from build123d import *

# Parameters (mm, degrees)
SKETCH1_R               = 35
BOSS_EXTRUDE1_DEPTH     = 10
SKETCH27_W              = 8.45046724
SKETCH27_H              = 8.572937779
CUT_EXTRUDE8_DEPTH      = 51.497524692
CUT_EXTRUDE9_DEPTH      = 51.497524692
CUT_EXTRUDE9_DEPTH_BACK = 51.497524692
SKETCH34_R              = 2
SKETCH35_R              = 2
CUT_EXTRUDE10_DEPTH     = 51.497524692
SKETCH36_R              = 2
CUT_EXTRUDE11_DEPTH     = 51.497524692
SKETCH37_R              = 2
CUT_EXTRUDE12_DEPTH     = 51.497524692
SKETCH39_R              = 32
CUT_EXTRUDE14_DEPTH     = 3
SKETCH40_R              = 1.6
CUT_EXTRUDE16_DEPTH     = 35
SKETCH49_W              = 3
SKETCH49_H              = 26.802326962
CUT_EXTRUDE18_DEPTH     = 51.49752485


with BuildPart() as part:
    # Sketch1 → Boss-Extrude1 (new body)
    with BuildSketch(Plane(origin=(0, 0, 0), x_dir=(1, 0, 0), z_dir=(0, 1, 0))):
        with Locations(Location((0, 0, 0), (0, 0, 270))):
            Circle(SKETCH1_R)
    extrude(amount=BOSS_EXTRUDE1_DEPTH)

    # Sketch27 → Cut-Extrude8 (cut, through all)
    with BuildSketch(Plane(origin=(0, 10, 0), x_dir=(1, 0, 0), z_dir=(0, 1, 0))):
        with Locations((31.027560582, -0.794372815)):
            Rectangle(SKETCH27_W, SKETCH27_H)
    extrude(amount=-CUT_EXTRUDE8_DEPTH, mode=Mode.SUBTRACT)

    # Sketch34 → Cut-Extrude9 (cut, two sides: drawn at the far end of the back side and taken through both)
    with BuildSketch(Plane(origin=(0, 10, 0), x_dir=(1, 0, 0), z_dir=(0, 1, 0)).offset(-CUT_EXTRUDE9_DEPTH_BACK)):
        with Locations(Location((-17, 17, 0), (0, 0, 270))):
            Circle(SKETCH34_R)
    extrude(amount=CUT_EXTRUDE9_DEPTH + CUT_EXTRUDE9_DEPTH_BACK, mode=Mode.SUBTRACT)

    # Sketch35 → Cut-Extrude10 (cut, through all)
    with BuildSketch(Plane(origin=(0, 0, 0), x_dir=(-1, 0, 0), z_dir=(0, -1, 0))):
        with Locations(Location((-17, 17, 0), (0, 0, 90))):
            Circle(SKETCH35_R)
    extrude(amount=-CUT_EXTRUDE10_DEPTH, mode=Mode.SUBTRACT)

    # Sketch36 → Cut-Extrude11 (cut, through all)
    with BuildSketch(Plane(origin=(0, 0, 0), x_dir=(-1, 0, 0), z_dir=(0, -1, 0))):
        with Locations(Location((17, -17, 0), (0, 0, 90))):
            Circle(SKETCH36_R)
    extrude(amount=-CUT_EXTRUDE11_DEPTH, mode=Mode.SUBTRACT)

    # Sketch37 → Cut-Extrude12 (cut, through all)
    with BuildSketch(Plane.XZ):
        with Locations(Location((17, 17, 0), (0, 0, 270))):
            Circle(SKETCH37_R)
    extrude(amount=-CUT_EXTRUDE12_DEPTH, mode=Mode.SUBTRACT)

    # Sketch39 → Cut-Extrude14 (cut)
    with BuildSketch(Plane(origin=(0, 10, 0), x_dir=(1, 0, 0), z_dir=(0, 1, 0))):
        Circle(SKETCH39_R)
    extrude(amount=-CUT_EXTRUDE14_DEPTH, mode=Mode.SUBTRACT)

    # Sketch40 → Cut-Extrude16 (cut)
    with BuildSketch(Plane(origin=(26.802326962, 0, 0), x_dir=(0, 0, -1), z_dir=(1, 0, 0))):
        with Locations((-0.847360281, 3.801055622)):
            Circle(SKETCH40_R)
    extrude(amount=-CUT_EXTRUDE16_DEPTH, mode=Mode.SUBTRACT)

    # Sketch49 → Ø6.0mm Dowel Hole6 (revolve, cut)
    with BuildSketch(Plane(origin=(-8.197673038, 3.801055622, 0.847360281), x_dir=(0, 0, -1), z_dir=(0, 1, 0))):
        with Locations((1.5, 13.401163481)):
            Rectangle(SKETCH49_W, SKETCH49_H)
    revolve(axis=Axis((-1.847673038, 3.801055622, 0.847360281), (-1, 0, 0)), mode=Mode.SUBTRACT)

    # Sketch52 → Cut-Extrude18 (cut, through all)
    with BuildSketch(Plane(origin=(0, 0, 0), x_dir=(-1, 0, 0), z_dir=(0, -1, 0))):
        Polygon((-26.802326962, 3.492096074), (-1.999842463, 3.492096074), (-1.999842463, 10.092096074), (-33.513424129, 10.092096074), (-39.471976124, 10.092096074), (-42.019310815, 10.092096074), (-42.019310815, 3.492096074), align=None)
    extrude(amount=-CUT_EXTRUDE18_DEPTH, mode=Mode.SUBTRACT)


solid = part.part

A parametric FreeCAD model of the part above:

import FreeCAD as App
import Part
import Sketcher
from FreeCAD import Vector
Q = App.Units.Quantity

doc = App.newDocument("Part")
body = doc.addObject("PartDesign::Body", "Body")

# Sketch on XZ plane
sketch1 = body.newObject("Sketcher::SketchObject", "Sketch")
sketch1.AttachmentSupport = (doc.getObject("XZ_Plane"), [""])
sketch1.MapMode = "FlatFace"
sketch1.addGeometry(Part.Circle(Vector(0, 0, 0), Vector(0, 0, 1), 35), False)
sketch1.addConstraint([
    Sketcher.Constraint("Coincident", 0, 3, -1, 1),
    Sketcher.Constraint("Diameter", 0, Q("70 mm")),
])
pad1 = body.newObject("PartDesign::Pad", "Pad")
pad1.Profile = sketch1
pad1.Length = 10
pad1.Reversed = True

# Sketch on XZ plane
sketch2 = body.newObject("Sketcher::SketchObject", "Sketch001")
sketch2.AttachmentSupport = (doc.getObject("XZ_Plane"), [""])
sketch2.MapMode = "FlatFace"
sketch2.AttachmentOffset = App.Placement(Vector(0, 0, -10), App.Rotation())
sketch2.addGeometry([
    Part.LineSegment(Vector(27, -3, 0), Vector(27, 5, 0)),
    Part.LineSegment(Vector(27, 5, 0), Vector(35, 5, 0)),
    Part.LineSegment(Vector(35, 5, 0), Vector(35, -3, 0)),
    Part.LineSegment(Vector(35, -3, 0), Vector(27, -3, 0)),
], False)
sketch2.addConstraint([
    Sketcher.Constraint("Coincident", 0, 2, 1, 1),
    Sketcher.Constraint("Coincident", 1, 2, 2, 1),
    Sketcher.Constraint("Coincident", 2, 2, 3, 1),
    Sketcher.Constraint("Coincident", 3, 2, 0, 1),
    Sketcher.Constraint("Vertical", 0),
    Sketcher.Constraint("Horizontal", 1),
    Sketcher.Constraint("Vertical", 2),
    Sketcher.Constraint("Horizontal", 3),
    Sketcher.Constraint("DistanceX", 1, 1, 1, 2, Q("8.450467 mm")),
    Sketcher.Constraint("DistanceY", 0, 1, 0, 2, Q("8.572938 mm")),
    Sketcher.Constraint("DistanceY", -1, 1, 0, 2, Q("5.080842 mm")),
    Sketcher.Constraint("DistanceX", -1, 1, 0, 2, Q("26.802327 mm")),
])
pocket1 = body.newObject("PartDesign::Pocket", "Pocket")
pocket1.Profile = sketch2
pocket1.Type = "ThroughAll"
pocket1.Reversed = True

# Sketch on XZ plane
sketch3 = body.newObject("Sketcher::SketchObject", "Sketch002")
sketch3.AttachmentSupport = (doc.getObject("XZ_Plane"), [""])
sketch3.MapMode = "FlatFace"
sketch3.AttachmentOffset = App.Placement(Vector(0, 0, -10), App.Rotation())
sketch3.addGeometry(Part.Circle(Vector(-17, -17, 0), Vector(0, 0, 1), 2), False)
sketch3.addConstraint([
    Sketcher.Constraint("Diameter", 0, Q("4 mm")),
    Sketcher.Constraint("DistanceX", 0, 3, -1, 1, Q("17 mm")),
    Sketcher.Constraint("DistanceY", 0, 3, -1, 1, Q("17 mm")),
])
pocket2 = body.newObject("PartDesign::Pocket", "Pocket001")
pocket2.Profile = sketch3
pocket2.Type = "ThroughAll"
pocket2.Midplane = True

# Sketch on XZ plane
sketch4 = body.newObject("Sketcher::SketchObject", "Sketch003")
sketch4.AttachmentSupport = (doc.getObject("XZ_Plane"), [""])
sketch4.MapMode = "FlatFace"
sketch4.addGeometry(Part.Circle(Vector(17, -17, 0), Vector(0, 0, 1), 2), False)
sketch4.addConstraint([
    Sketcher.Constraint("Diameter", 0, Q("4 mm")),
    Sketcher.Constraint("DistanceX", -1, 1, 0, 3, Q("17 mm")),
    Sketcher.Constraint("DistanceY", 0, 3, -1, 1, Q("17 mm")),
])
pocket3 = body.newObject("PartDesign::Pocket", "Pocket002")
pocket3.Profile = sketch4
pocket3.Type = "ThroughAll"

# Sketch on XZ plane
sketch5 = body.newObject("Sketcher::SketchObject", "Sketch004")
sketch5.AttachmentSupport = (doc.getObject("XZ_Plane"), [""])
sketch5.MapMode = "FlatFace"
sketch5.addGeometry(Part.Circle(Vector(-17, 17, 0), Vector(0, 0, 1), 2), False)
sketch5.addConstraint([
    Sketcher.Constraint("Diameter", 0, Q("4 mm")),
    Sketcher.Constraint("DistanceX", 0, 3, -1, 1, Q("17 mm")),
    Sketcher.Constraint("DistanceY", -1, 1, 0, 3, Q("17 mm")),
])
pocket4 = body.newObject("PartDesign::Pocket", "Pocket003")
pocket4.Profile = sketch5
pocket4.Type = "ThroughAll"

# Sketch on XZ plane
sketch6 = body.newObject("Sketcher::SketchObject", "Sketch005")
sketch6.AttachmentSupport = (doc.getObject("XZ_Plane"), [""])
sketch6.MapMode = "FlatFace"
sketch6.addGeometry(Part.Circle(Vector(17, 17, 0), Vector(0, 0, 1), 2), False)
sketch6.addConstraint([
    Sketcher.Constraint("Diameter", 0, Q("4 mm")),
    Sketcher.Constraint("DistanceX", -1, 1, 0, 3, Q("17 mm")),
    Sketcher.Constraint("DistanceY", -1, 1, 0, 3, Q("17 mm")),
])
pocket5 = body.newObject("PartDesign::Pocket", "Pocket004")
pocket5.Profile = sketch6
pocket5.Type = "ThroughAll"

# Sketch on XZ plane
sketch7 = body.newObject("Sketcher::SketchObject", "Sketch006")
sketch7.AttachmentSupport = (doc.getObject("XZ_Plane"), [""])
sketch7.MapMode = "FlatFace"
sketch7.AttachmentOffset = App.Placement(Vector(0, 0, -10), App.Rotation())
sketch7.addGeometry(Part.Circle(Vector(0, 0, 0), Vector(0, 0, 1), 32), False)
sketch7.addConstraint([
    Sketcher.Constraint("Coincident", 0, 3, -1, 1),
    Sketcher.Constraint("Diameter", 0, Q("64 mm")),
])
pocket6 = body.newObject("PartDesign::Pocket", "Pocket005")
pocket6.Profile = sketch7
pocket6.Length = 3
pocket6.Reversed = True

# Sketch on YZ plane
sketch8 = body.newObject("Sketcher::SketchObject", "Sketch007")
sketch8.AttachmentSupport = (doc.getObject("YZ_Plane"), [""])
sketch8.MapMode = "FlatFace"
sketch8.AttachmentOffset = App.Placement(Vector(0, 0, 26.802327), App.Rotation())
sketch8.addGeometry(Part.Circle(Vector(3.8, 0.8, 0), Vector(0, 0, 1), 1.6), False)
sketch8.addConstraint([
    Sketcher.Constraint("Diameter", 0, Q("3.2 mm")),
    Sketcher.Constraint("DistanceY", -1, 1, 0, 3, Q("0.84736 mm")),
    Sketcher.Constraint("DistanceX", -1, 1, 0, 3, Q("3.801056 mm")),
])
pocket7 = body.newObject("PartDesign::Pocket", "Pocket006")
pocket7.Profile = sketch8
pocket7.Length = 35

# Sketch on XZ plane
sketch9 = body.newObject("Sketcher::SketchObject", "Sketch008")
sketch9.AttachmentSupport = (doc.getObject("XZ_Plane"), [""])
sketch9.MapMode = "FlatFace"
sketch9.AttachmentOffset = App.Placement(Vector(0, 0, -3.801056), App.Rotation())
sketch9.addGeometry([
    Part.LineSegment(Vector(-35, 0.8, 0), Vector(-8.2, 0.8, 0)),
    Part.LineSegment(Vector(-8.2, 0.8, 0), Vector(-8.2, -2.2, 0)),
    Part.LineSegment(Vector(-8.2, -2.2, 0), Vector(-35, -2.2, 0)),
    Part.LineSegment(Vector(-35, -2.2, 0), Vector(-35, 0.8, 0)),
], False)
sketch9.addGeometry(Part.LineSegment(Vector(-8.2, 0.8, 0), Vector(-35, 0.8, 0)), True)  # axis
sketch9.addConstraint([
    Sketcher.Constraint("Coincident", 0, 2, 1, 1),
    Sketcher.Constraint("Coincident", 1, 2, 2, 1),
    Sketcher.Constraint("Coincident", 2, 2, 3, 1),
    Sketcher.Constraint("Coincident", 3, 2, 0, 1),
    Sketcher.Constraint("Horizontal", 0),
    Sketcher.Constraint("Vertical", 1),
    Sketcher.Constraint("Horizontal", 2),
    Sketcher.Constraint("Vertical", 3),
    Sketcher.Constraint("Horizontal", 4),
    Sketcher.Constraint("Coincident", 4, 1, 0, 2),
    Sketcher.Constraint("Vertical", 2, 2, 4, 2),
    Sketcher.Constraint("DistanceY", 1, 2, 1, 1, Q("3 mm")),
    Sketcher.Constraint("DistanceX", 2, 2, -1, 1, Q("35 mm")),
    Sketcher.Constraint("DistanceX", 0, 1, 0, 2, Q("26.802327 mm")),
    Sketcher.Constraint("DistanceY", -1, 1, 0, 2, Q("0.84736 mm")),
])
groove = body.newObject("PartDesign::Groove", "Groove")
groove.Profile = sketch9
groove.ReferenceAxis = (sketch9, ["Axis0"])
groove.Angle = 360

# Sketch on XZ plane
sketch10 = body.newObject("Sketcher::SketchObject", "Sketch009")
sketch10.AttachmentSupport = (doc.getObject("XZ_Plane"), [""])
sketch10.MapMode = "FlatFace"
sketch10.addGeometry([
    Part.LineSegment(Vector(2, -3, 0), Vector(2, -10, 0)),
    Part.LineSegment(Vector(2, -10, 0), Vector(42, -10, 0)),
    Part.LineSegment(Vector(42, -10, 0), Vector(42, -3, 0)),
    Part.LineSegment(Vector(42, -3, 0), Vector(2, -3, 0)),
], False)
sketch10.addConstraint([
    Sketcher.Constraint("Coincident", 0, 2, 1, 1),
    Sketcher.Constraint("Coincident", 1, 2, 2, 1),
    Sketcher.Constraint("Coincident", 2, 2, 3, 1),
    Sketcher.Constraint("Coincident", 3, 2, 0, 1),
    Sketcher.Constraint("Vertical", 0),
    Sketcher.Constraint("Horizontal", 1),
    Sketcher.Constraint("Vertical", 2),
    Sketcher.Constraint("Horizontal", 3),
    Sketcher.Constraint("DistanceY", 0, 2, 0, 1, Q("6.6 mm")),
    Sketcher.Constraint("DistanceX", 1, 1, 1, 2, Q("40.019468 mm")),
    Sketcher.Constraint("DistanceX", -1, 1, 1, 2, Q("42.019311 mm")),
    Sketcher.Constraint("DistanceY", 0, 2, -1, 1, Q("10.092096 mm")),
])
pocket8 = body.newObject("PartDesign::Pocket", "Pocket007")
pocket8.Profile = sketch10
pocket8.Type = "ThroughAll"

doc.recompute()
